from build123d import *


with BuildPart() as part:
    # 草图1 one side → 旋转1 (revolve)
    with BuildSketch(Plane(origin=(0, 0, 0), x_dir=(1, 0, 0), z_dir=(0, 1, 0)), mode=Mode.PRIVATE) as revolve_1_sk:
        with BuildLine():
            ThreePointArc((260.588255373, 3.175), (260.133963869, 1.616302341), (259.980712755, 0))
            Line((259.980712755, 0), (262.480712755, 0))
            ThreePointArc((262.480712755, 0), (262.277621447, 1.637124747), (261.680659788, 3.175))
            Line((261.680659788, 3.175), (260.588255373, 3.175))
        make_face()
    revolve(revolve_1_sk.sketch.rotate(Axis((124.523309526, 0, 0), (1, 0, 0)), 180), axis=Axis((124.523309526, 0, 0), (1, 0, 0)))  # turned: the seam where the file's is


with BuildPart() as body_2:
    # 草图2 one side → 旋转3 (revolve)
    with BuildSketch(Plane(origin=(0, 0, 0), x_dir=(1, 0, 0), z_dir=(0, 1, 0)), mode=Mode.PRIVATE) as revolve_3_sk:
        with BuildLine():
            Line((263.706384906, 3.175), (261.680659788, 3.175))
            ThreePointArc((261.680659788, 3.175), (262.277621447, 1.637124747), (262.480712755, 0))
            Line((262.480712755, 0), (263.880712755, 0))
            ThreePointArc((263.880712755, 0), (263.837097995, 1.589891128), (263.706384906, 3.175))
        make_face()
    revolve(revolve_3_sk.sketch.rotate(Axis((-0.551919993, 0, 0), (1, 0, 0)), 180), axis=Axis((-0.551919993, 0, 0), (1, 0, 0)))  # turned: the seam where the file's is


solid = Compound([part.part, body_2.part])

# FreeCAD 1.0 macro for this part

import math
import FreeCAD as App
import Part
import Sketcher
from FreeCAD import Vector
Q = App.Units.Quantity

doc = App.newDocument("Part")
body = doc.addObject("PartDesign::Body", "Body")

# Sketch on XZ plane
sketch1 = body.newObject("Sketcher::SketchObject", "Sketch")
sketch1.AttachmentSupport = (doc.getObject("XZ_Plane"), [""])
sketch1.MapMode = "FlatFace"
sketch1.addGeometry(Part.ArcOfCircle(Part.Circle(Vector(268.6, 0, 0), Vector(0, 0, 1), 8.6), math.radians(180), math.radians(202)), False)
sketch1.addGeometry(Part.LineSegment(Vector(260, 0, 0), Vector(262.5, 0, 0)), False)
sketch1.addGeometry(Part.ArcOfCircle(Part.Circle(Vector(255.8, 0, 0), Vector(0, 0, 1), 6.7), math.radians(-28), math.radians(0)), False)
sketch1.addGeometry(Part.LineSegment(Vector(261.7, -3.2, 0), Vector(260.6, -3.2, 0)), False)
sketch1.addConstraint(Sketcher.Constraint("Coincident", 0, 1, 1, 1))
sketch1.addConstraint(Sketcher.Constraint("Coincident", 1, 2, 2, 2))
sketch1.addConstraint(Sketcher.Constraint("Coincident", 2, 1, 3, 1))
sketch1.addConstraint(Sketcher.Constraint("Coincident", 3, 2, 0, 2))
sketch1.addConstraint(Sketcher.Constraint("Horizontal", 1))
sketch1.addConstraint(Sketcher.Constraint("Horizontal", 3))
sketch1.addConstraint(Sketcher.Constraint("PointOnObject", 0, 3, -1))
sketch1.addConstraint(Sketcher.Constraint("PointOnObject", 2, 3, -1))
sketch1.addConstraint(Sketcher.Constraint("PointOnObject", 0, 1, -1))
sketch1.addConstraint(Sketcher.Constraint("Radius", 0, Q("8.6 mm")))
sketch1.addConstraint(Sketcher.Constraint("Radius", 2, Q("6.7 mm")))
sketch1.addConstraint(Sketcher.Constraint("DistanceX", 1, 1, 1, 2, Q("2.5 mm")))
sketch1.addConstraint(Sketcher.Constraint("DistanceY", 2, 1, -1, 1, Q("3.175 mm")))
sketch1.addConstraint(Sketcher.Constraint("DistanceX", -1, 1, 2, 1, Q("261.68066 mm")))
revolution = body.newObject("PartDesign::Revolution", "Revolution")
revolution.Profile = sketch1
revolution.ReferenceAxis = (sketch1, ["H_Axis"])
revolution.Angle = 360
body2 = doc.addObject("PartDesign::Body", "Body001")

# Sketch on XZ plane
sketch2 = body2.newObject("Sketcher::SketchObject", "Sketch001")
sketch2.AttachmentSupport = (doc.getObject("XZ_Plane001"), [""])
sketch2.MapMode = "FlatFace"
sketch2.addGeometry(Part.LineSegment(Vector(263.7, -3.2, 0), Vector(261.7, -3.2, 0)), False)
sketch2.addGeometry(Part.ArcOfCircle(Part.Circle(Vector(255.8, 0, 0), Vector(0, 0, 1), 6.7), math.radians(-28), math.radians(0)), False)
sketch2.addGeometry(Part.LineSegment(Vector(262.5, 0, 0), Vector(263.9, 0, 0)), False)
sketch2.addGeometry(Part.ArcOfCircle(Part.Circle(Vector(234.9, 0, 0), Vector(0, 0, 1), 29), math.radians(-6.29), math.radians(0)), False)
sketch2.addConstraint(Sketcher.Constraint("Coincident", 0, 2, 1, 1))
sketch2.addConstraint(Sketcher.Constraint("Coincident", 1, 2, 2, 1))
sketch2.addConstraint(Sketcher.Constraint("Coincident", 2, 2, 3, 2))
sketch2.addConstraint(Sketcher.Constraint("Coincident", 3, 1, 0, 1))
sketch2.addConstraint(Sketcher.Constraint("Horizontal", 0))
sketch2.addConstraint(Sketcher.Constraint("Horizontal", 2))
sketch2.addConstraint(Sketcher.Constraint("PointOnObject", 1, 3, -1))
sketch2.addConstraint(Sketcher.Constraint("PointOnObject", 3, 3, -1))
sketch2.addConstraint(Sketcher.Constraint("PointOnObject", 1, 2, -1))
sketch2.addConstraint(Sketcher.Constraint("Radius", 3, Q("29 mm")))
sketch2.addConstraint(Sketcher.Constraint("Radius", 1, Q("6.7 mm")))
sketch2.addConstraint(Sketcher.Constraint("DistanceX", 2, 1, 2, 2, Q("1.4 mm")))
sketch2.addConstraint(Sketcher.Constraint("DistanceY", 0, 2, -1, 1, Q("3.175 mm")))
sketch2.addConstraint(Sketcher.Constraint("DistanceX", -1, 1, 0, 2, Q("261.68066 mm")))
revolution2 = body2.newObject("PartDesign::Revolution", "Revolution001")
revolution2.Profile = sketch2
revolution2.ReferenceAxis = (sketch2, ["H_Axis"])
revolution2.Angle = 360

doc.recompute()
